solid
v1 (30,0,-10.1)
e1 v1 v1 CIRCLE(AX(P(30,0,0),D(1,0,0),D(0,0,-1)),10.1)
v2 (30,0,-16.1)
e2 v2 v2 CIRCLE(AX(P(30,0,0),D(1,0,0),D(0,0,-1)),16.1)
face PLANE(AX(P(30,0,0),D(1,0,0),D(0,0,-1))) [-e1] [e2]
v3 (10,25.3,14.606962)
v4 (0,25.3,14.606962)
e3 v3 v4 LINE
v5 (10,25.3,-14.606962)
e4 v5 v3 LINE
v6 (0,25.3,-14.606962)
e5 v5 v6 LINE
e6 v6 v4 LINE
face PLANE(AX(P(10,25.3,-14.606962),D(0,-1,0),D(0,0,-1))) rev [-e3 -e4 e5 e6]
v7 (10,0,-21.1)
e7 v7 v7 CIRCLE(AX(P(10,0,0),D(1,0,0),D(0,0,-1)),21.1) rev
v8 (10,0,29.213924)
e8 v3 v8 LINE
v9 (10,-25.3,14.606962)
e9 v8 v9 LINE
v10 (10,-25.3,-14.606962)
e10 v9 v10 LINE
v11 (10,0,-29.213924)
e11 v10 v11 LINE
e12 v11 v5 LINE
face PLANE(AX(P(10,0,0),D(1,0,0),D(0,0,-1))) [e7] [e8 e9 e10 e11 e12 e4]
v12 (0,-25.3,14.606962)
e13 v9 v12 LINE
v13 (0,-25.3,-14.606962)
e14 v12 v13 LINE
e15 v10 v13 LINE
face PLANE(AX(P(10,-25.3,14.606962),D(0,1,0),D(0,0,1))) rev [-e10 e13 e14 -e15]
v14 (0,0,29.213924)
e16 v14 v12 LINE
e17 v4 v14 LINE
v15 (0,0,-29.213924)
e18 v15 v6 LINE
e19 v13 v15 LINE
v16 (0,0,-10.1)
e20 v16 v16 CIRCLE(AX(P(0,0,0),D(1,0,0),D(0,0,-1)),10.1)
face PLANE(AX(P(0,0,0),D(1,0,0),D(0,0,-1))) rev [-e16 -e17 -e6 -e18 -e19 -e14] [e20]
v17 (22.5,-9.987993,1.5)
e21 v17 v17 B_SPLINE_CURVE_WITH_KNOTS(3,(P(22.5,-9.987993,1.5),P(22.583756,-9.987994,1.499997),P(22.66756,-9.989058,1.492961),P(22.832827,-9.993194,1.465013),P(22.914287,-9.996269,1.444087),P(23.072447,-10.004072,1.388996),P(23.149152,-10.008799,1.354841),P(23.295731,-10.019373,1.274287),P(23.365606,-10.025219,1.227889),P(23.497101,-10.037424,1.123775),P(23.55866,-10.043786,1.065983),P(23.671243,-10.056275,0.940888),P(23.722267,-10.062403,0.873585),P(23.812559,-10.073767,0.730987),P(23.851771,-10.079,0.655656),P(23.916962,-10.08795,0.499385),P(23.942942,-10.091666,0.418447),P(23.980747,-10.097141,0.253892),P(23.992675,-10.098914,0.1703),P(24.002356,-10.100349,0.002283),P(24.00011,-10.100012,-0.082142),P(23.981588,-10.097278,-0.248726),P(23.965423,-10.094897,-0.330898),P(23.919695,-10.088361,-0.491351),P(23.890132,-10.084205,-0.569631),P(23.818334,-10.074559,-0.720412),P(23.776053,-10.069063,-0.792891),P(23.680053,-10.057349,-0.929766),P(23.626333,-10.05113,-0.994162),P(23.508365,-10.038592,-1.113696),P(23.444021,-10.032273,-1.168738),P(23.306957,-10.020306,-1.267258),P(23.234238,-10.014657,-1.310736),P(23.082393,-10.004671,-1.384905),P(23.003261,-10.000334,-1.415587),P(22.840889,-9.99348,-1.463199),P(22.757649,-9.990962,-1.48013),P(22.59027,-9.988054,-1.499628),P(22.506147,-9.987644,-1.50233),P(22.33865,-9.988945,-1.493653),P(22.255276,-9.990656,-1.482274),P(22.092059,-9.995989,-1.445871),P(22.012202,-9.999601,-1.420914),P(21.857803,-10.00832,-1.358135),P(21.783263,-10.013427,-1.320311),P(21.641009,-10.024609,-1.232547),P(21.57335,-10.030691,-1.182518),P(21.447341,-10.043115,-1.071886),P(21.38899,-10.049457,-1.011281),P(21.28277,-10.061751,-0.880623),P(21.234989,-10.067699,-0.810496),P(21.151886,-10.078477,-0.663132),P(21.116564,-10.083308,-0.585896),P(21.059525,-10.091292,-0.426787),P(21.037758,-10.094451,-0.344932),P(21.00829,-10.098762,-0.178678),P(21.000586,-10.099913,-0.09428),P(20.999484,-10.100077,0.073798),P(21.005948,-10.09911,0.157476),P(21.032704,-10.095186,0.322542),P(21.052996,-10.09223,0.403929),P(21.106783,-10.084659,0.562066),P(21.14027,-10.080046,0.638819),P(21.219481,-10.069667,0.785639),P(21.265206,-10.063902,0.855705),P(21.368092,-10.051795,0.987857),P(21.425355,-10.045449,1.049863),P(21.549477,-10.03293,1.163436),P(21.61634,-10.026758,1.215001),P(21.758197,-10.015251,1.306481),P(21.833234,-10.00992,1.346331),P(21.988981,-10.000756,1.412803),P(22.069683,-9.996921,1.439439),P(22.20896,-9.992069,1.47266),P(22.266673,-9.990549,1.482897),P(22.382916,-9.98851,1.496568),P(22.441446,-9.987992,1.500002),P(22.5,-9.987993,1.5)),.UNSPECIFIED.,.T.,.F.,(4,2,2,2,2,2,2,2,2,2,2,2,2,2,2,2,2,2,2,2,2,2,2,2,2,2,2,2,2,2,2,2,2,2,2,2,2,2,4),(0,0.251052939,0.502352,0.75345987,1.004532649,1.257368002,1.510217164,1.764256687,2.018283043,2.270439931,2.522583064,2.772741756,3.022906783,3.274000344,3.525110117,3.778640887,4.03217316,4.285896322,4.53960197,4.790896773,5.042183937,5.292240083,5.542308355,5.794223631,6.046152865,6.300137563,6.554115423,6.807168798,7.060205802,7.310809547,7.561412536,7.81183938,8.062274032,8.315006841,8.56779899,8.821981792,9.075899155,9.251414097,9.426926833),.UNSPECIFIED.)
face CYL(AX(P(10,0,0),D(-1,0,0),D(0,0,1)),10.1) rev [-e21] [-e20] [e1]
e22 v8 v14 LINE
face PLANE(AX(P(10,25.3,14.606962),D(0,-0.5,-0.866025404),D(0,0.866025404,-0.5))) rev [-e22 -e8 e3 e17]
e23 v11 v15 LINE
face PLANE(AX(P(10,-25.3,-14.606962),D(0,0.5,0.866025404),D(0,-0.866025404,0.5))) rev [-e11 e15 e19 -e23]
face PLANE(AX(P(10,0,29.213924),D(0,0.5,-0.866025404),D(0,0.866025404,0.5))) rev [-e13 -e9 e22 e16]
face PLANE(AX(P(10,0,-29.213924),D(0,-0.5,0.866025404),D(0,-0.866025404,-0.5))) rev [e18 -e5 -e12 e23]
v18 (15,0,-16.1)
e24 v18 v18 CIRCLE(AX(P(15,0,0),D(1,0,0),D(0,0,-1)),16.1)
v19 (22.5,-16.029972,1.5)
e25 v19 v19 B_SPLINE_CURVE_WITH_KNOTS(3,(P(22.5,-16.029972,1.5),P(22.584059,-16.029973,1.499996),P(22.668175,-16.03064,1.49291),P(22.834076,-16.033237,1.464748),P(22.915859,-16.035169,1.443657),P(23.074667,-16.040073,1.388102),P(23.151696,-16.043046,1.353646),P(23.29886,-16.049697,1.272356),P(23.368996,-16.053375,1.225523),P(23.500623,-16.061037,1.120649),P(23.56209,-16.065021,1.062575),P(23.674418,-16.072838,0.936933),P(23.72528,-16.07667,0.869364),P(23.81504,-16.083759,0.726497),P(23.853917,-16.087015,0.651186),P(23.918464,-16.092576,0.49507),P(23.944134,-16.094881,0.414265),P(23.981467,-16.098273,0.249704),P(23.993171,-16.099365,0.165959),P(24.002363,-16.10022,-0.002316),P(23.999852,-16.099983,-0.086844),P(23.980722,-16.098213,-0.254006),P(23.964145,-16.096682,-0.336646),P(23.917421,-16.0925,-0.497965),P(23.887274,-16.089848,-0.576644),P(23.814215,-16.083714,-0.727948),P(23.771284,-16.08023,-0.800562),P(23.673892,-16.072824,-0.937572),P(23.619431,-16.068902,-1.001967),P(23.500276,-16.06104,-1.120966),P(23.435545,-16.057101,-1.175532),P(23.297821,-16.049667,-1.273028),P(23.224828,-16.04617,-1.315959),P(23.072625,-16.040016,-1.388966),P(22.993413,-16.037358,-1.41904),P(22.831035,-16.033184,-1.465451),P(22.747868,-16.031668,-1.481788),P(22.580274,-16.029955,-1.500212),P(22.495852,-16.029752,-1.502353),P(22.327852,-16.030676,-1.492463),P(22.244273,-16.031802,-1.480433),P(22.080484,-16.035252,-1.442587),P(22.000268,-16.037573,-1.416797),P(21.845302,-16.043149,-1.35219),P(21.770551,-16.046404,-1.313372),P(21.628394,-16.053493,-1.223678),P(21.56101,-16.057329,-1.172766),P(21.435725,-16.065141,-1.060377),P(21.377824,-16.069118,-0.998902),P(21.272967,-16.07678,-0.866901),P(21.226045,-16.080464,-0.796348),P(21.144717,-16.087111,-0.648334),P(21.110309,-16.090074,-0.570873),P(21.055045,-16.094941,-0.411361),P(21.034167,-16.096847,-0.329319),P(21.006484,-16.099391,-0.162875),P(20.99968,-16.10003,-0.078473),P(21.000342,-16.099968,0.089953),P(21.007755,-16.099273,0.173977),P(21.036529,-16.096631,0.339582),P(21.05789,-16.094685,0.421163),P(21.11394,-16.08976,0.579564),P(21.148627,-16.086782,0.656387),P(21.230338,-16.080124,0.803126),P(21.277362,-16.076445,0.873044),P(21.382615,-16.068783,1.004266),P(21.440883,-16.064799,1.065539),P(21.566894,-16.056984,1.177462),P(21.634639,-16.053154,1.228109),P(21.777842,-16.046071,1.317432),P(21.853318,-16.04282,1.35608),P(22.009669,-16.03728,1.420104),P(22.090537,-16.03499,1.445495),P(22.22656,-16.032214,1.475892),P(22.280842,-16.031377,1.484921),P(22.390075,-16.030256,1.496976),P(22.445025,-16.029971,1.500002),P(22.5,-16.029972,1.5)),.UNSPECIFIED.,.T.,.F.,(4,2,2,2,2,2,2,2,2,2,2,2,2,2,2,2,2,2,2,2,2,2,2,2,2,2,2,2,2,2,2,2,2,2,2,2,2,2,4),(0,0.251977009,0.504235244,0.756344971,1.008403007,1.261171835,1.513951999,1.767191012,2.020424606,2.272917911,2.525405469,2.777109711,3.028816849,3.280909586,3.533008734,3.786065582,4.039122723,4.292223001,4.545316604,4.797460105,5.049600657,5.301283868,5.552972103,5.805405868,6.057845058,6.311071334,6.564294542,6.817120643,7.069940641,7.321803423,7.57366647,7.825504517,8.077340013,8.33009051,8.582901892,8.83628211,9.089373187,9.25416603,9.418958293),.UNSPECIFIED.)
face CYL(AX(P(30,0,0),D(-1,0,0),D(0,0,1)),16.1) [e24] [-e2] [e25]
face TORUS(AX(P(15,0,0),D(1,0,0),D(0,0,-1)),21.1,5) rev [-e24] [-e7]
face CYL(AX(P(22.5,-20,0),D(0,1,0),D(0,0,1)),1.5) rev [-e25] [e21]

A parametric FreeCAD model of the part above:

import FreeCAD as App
import Part
import Sketcher
from FreeCAD import Vector
Q = App.Units.Quantity


def edges_at(feature, points):
    """Names of the edges that pass closest to the given points."""
    edges = feature.Shape.Edges
    near = lambda p: min(range(len(edges)), key=lambda i: edges[i].distToShape(Part.Vertex(*p))[0])
    return sorted({f"Edge{near(p) + 1}" for p in points})


def add_polygon(sketch, points):
    """Adds a closed chain of lines whose ends are joined by coincident constraints."""
    first, n = sketch.GeometryCount, len(points)
    for a, b in zip(points, points[1:] + points[:1]):
        sketch.addGeometry(Part.LineSegment(App.Vector(*a, 0), App.Vector(*b, 0)), False)
    for i in range(n):
        sketch.addConstraint(Sketcher.Constraint("Coincident", first + i, 2, first + (i + 1) % n, 1))

doc = App.newDocument("Part")
body = doc.addObject("PartDesign::Body", "Body")

sketch1 = body.newObject("Sketcher::SketchObject", "Sketch")
sketch1.AttachmentSupport = (doc.getObject("YZ_Plane"), [""])
sketch1.MapMode = "FlatFace"
add_polygon(sketch1, [(25, -15), (25, 15), (0, 29), (-25, 15), (-25, -15), (0, -29)])
sketch1.addGeometry(Part.Circle(Vector(0, 0, 0), Vector(0, 0, 1), 10), False)
sketch1.addConstraint(Sketcher.Constraint("Vertical", 0))
sketch1.addConstraint(Sketcher.Constraint("Vertical", 3))
sketch1.addConstraint(Sketcher.Constraint("Coincident", 6, 3, -1, 1))
sketch1.addConstraint(Sketcher.Constraint("Symmetric", 0, 2, 3, 2, -1, 1))
sketch1.addConstraint(Sketcher.Constraint("Symmetric", 1, 2, 4, 2, -1, 1))
sketch1.addConstraint(Sketcher.Constraint("PointOnObject", 1, 2, -2))
sketch1.addConstraint(Sketcher.Constraint("Parallel", 2, 5))
sketch1.addConstraint(Sketcher.Constraint("Horizontal", 0, 2, 2, 2))
sketch1.addConstraint(Sketcher.Constraint("Diameter", 6, Q("20.2 mm")))
sketch1.addConstraint(Sketcher.Constraint("Angle", 1, Q("150 deg")))
sketch1.addConstraint(Sketcher.Constraint("DistanceX", -1, 1, 0, 2, Q("25.3 mm")))
sketch1.addConstraint(Sketcher.Constraint("DistanceY", 0, 1, 0, 2, Q("29.213924 mm")))
pad1 = body.newObject("PartDesign::Pad", "Pad")
pad1.Profile = sketch1
pad1.Length = 10

sketch2 = body.newObject("Sketcher::SketchObject", "Sketch001")
sketch2.AttachmentSupport = (doc.getObject("YZ_Plane"), [""])
sketch2.MapMode = "FlatFace"
sketch2.AttachmentOffset = App.Placement(Vector(0, 0, 10), App.Rotation())
sketch2.addGeometry(Part.Circle(Vector(0, 0, 0), Vector(0, 0, 1), 16), False)
sketch2.addGeometry(Part.Circle(Vector(0, 0, 0), Vector(0, 0, 1), 10), False)
sketch2.addConstraint(Sketcher.Constraint("Coincident", 0, 3, -1, 1))
sketch2.addConstraint(Sketcher.Constraint("Coincident", 1, 3, -1, 1))
sketch2.addConstraint(Sketcher.Constraint("Diameter", 0, Q("32.2 mm")))
sketch2.addConstraint(Sketcher.Constraint("Diameter", 1, Q("20.2 mm")))
pad2 = body.newObject("PartDesign::Pad", "Pad001")
pad2.Profile = sketch2
pad2.Length = 20
doc.recompute()

fillet = body.newObject("PartDesign::Fillet", "Fillet")
fillet.Base = (pad2, edges_at(pad2, [(10, 0, 16.1)]))
fillet.Radius = 5

sketch3 = body.newObject("Sketcher::SketchObject", "Sketch002")
sketch3.AttachmentSupport = (doc.getObject("XZ_Plane"), [""])
sketch3.MapMode = "FlatFace"
sketch3.addGeometry(Part.Circle(Vector(22.5, 0, 0), Vector(0, 0, 1), 1.5), False)
sketch3.addConstraint(Sketcher.Constraint("PointOnObject", 0, 3, -1))
sketch3.addConstraint(Sketcher.Constraint("Diameter", 0, Q("3 mm")))
sketch3.addConstraint(Sketcher.Constraint("DistanceX", -1, 1, 0, 3, Q("22.5 mm")))
pocket1 = body.newObject("PartDesign::Pocket", "Pocket")
pocket1.Profile = sketch3
pocket1.Length = 20
pocket1.Reversed = True

doc.recompute()
